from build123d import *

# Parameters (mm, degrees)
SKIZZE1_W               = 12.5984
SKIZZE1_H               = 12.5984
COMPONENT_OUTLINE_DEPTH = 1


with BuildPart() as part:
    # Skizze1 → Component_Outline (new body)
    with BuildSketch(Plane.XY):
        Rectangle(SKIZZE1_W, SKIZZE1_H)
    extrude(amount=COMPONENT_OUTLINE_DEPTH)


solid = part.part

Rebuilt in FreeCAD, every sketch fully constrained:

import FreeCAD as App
import Part
import Sketcher
from FreeCAD import Vector
Q = App.Units.Quantity

doc = App.newDocument("Part")
body = doc.addObject("PartDesign::Body", "Body")

# Sketch on XY plane
sketch1 = body.newObject("Sketcher::SketchObject", "Sketch")
sketch1.AttachmentSupport = (doc.getObject("XY_Plane"), [""])
sketch1.MapMode = "FlatFace"
sketch1.addGeometry([
    Part.LineSegment(Vector(-6, 6, 0), Vector(-6, -6, 0)),
    Part.LineSegment(Vector(-6, -6, 0), Vector(6, -6, 0)),
    Part.LineSegment(Vector(6, -6, 0), Vector(6, 6, 0)),
    Part.LineSegment(Vector(6, 6, 0), Vector(-6, 6, 0)),
], False)
sketch1.addConstraint([
    Sketcher.Constraint("Coincident", 0, 2, 1, 1),
    Sketcher.Constraint("Coincident", 1, 2, 2, 1),
    Sketcher.Constraint("Coincident", 2, 2, 3, 1),
    Sketcher.Constraint("Coincident", 3, 2, 0, 1),
    Sketcher.Constraint("Vertical", 0),
    Sketcher.Constraint("Horizontal", 1),
    Sketcher.Constraint("Vertical", 2),
    Sketcher.Constraint("Horizontal", 3),
    Sketcher.Constraint("Symmetric", 0, 2, 2, 2, -1, 1),
    Sketcher.Constraint("Equal", 3, 0),
    Sketcher.Constraint("DistanceX", 1, 1, 1, 2, Q("12.5984 mm")),
])
pad1 = body.newObject("PartDesign::Pad", "Pad")
pad1.Profile = sketch1
pad1.Length = 1

doc.recompute()
